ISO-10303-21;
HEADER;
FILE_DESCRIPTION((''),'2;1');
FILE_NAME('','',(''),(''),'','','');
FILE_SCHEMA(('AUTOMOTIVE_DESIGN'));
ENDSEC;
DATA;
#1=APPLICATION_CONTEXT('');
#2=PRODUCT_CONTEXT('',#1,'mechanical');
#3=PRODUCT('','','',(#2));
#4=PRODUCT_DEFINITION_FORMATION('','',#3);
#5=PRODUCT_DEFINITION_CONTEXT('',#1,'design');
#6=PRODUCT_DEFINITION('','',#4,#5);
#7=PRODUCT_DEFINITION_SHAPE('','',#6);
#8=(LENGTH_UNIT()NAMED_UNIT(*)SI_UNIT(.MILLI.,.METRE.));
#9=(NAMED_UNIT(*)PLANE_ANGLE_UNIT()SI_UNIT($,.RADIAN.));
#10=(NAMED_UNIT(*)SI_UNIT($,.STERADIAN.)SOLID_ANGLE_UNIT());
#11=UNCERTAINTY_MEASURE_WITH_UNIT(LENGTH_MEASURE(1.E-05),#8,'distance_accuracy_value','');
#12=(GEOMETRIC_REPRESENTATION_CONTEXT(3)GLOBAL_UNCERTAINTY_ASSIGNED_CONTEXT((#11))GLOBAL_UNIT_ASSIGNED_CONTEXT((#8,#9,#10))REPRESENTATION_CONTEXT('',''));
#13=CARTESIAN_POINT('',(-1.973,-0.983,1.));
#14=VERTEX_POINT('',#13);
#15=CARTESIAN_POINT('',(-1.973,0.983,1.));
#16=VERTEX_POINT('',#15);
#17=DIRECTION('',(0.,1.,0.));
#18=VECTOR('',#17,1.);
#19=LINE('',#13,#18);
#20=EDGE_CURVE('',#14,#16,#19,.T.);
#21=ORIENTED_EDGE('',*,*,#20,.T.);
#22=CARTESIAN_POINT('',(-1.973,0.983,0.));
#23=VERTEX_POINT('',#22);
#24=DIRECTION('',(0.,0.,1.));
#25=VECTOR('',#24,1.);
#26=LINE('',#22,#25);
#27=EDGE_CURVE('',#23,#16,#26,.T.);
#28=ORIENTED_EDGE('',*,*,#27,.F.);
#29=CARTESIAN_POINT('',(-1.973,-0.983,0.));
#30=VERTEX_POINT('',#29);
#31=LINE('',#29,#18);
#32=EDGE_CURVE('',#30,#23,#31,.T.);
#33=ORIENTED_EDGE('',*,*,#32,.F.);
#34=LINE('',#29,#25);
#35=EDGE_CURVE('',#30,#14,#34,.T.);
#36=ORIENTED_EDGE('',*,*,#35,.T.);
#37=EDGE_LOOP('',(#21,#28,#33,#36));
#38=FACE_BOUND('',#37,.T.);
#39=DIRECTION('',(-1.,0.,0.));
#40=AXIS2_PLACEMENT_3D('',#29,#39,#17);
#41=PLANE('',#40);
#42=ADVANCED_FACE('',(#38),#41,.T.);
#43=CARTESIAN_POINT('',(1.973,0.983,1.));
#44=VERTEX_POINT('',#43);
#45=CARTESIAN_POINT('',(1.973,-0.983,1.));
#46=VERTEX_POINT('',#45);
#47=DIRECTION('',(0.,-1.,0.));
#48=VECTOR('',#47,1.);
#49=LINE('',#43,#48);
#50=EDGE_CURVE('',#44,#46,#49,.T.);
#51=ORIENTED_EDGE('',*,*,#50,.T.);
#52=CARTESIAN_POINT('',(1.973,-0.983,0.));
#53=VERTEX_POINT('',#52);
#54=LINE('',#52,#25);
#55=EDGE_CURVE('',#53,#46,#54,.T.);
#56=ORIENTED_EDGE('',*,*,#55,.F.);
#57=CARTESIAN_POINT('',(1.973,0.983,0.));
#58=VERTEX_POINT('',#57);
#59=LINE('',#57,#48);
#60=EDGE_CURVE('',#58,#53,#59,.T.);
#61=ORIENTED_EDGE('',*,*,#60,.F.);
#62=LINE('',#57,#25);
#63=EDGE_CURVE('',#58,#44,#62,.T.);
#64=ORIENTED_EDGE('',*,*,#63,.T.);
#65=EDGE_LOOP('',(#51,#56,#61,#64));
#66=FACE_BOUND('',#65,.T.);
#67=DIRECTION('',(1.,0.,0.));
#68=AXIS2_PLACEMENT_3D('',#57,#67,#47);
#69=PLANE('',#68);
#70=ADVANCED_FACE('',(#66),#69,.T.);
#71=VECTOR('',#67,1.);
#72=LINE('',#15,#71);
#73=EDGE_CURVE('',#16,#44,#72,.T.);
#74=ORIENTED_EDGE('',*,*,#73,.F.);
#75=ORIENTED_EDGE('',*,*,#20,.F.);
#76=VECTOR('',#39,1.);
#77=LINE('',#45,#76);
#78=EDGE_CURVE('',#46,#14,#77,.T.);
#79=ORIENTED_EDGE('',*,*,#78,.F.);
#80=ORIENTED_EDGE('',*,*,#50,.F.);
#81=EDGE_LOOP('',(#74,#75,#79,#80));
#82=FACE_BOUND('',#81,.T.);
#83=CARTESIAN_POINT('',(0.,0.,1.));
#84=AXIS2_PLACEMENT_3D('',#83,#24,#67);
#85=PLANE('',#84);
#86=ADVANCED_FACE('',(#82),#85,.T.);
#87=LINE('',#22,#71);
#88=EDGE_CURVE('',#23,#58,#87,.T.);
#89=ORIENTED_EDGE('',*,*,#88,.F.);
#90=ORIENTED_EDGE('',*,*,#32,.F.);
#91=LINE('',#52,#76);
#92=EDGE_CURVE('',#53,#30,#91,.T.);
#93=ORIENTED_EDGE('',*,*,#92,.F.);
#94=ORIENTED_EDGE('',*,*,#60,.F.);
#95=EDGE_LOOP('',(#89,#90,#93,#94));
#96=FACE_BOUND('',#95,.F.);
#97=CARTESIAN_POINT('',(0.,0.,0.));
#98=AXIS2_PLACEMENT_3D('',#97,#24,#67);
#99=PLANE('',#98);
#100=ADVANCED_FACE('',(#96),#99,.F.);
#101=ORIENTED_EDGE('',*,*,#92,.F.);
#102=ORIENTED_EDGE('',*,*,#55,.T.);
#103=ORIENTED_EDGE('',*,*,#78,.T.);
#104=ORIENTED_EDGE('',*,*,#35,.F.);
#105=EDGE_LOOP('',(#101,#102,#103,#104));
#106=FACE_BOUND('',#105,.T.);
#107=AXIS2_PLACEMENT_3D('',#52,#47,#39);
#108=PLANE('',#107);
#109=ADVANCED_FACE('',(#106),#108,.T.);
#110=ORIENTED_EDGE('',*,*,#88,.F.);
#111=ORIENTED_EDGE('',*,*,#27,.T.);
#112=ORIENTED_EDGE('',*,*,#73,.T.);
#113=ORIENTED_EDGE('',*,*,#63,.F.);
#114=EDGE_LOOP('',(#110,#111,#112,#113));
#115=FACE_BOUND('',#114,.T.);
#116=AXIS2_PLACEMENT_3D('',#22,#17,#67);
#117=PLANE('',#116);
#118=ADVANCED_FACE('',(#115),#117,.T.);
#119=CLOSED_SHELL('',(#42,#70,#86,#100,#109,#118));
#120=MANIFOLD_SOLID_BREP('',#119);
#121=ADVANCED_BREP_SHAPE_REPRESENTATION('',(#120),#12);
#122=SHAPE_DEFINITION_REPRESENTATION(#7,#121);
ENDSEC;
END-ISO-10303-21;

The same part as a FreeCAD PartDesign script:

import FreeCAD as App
import Part
import Sketcher
from FreeCAD import Vector
Q = App.Units.Quantity


def add_polygon(sketch, points):
    """Adds a closed chain of lines whose ends are joined by coincident constraints."""
    first, n = sketch.GeometryCount, len(points)
    for a, b in zip(points, points[1:] + points[:1]):
        sketch.addGeometry(Part.LineSegment(App.Vector(*a, 0), App.Vector(*b, 0)), False)
    for i in range(n):
        sketch.addConstraint(Sketcher.Constraint("Coincident", first + i, 2, first + (i + 1) % n, 1))

doc = App.newDocument("Part")
params = doc.addObject("Spreadsheet::Sheet", "Params")
for row, (alias, value) in enumerate([
    ("pad1_length", "1 mm"),
], start=1):
    params.set(f"A{row}", alias)
    params.set(f"B{row}", "=" + value)
    params.setAlias(f"B{row}", alias)

body = doc.addObject("PartDesign::Body", "Body")

# Sketch on XY plane
sketch1 = body.newObject("Sketcher::SketchObject", "Sketch")
sketch1.AttachmentSupport = (doc.getObject("XY_Plane"), [""])
sketch1.MapMode = "FlatFace"
add_polygon(sketch1, [(2, 1), (-2, 1), (-2, -1), (2, -1)])  # lines 0-3
sketch1.addConstraint([
    Sketcher.Constraint("Horizontal", 0),
    Sketcher.Constraint("Vertical", 1),
    Sketcher.Constraint("Horizontal", 2),
    Sketcher.Constraint("Vertical", 3),
    Sketcher.Constraint("Symmetric", 0, 2, 2, 2, -1, 1),
    Sketcher.Constraint("DistanceX", 0, 2, 0, 1, Q("3.946 mm")),
    Sketcher.Constraint("DistanceY", 1, 2, 1, 1, Q("1.966 mm")),
])
pad1 = body.newObject("PartDesign::Pad", "Pad")
pad1.Profile = sketch1
pad1.setExpression("Length", "Params.pad1_length")

doc.recompute()
